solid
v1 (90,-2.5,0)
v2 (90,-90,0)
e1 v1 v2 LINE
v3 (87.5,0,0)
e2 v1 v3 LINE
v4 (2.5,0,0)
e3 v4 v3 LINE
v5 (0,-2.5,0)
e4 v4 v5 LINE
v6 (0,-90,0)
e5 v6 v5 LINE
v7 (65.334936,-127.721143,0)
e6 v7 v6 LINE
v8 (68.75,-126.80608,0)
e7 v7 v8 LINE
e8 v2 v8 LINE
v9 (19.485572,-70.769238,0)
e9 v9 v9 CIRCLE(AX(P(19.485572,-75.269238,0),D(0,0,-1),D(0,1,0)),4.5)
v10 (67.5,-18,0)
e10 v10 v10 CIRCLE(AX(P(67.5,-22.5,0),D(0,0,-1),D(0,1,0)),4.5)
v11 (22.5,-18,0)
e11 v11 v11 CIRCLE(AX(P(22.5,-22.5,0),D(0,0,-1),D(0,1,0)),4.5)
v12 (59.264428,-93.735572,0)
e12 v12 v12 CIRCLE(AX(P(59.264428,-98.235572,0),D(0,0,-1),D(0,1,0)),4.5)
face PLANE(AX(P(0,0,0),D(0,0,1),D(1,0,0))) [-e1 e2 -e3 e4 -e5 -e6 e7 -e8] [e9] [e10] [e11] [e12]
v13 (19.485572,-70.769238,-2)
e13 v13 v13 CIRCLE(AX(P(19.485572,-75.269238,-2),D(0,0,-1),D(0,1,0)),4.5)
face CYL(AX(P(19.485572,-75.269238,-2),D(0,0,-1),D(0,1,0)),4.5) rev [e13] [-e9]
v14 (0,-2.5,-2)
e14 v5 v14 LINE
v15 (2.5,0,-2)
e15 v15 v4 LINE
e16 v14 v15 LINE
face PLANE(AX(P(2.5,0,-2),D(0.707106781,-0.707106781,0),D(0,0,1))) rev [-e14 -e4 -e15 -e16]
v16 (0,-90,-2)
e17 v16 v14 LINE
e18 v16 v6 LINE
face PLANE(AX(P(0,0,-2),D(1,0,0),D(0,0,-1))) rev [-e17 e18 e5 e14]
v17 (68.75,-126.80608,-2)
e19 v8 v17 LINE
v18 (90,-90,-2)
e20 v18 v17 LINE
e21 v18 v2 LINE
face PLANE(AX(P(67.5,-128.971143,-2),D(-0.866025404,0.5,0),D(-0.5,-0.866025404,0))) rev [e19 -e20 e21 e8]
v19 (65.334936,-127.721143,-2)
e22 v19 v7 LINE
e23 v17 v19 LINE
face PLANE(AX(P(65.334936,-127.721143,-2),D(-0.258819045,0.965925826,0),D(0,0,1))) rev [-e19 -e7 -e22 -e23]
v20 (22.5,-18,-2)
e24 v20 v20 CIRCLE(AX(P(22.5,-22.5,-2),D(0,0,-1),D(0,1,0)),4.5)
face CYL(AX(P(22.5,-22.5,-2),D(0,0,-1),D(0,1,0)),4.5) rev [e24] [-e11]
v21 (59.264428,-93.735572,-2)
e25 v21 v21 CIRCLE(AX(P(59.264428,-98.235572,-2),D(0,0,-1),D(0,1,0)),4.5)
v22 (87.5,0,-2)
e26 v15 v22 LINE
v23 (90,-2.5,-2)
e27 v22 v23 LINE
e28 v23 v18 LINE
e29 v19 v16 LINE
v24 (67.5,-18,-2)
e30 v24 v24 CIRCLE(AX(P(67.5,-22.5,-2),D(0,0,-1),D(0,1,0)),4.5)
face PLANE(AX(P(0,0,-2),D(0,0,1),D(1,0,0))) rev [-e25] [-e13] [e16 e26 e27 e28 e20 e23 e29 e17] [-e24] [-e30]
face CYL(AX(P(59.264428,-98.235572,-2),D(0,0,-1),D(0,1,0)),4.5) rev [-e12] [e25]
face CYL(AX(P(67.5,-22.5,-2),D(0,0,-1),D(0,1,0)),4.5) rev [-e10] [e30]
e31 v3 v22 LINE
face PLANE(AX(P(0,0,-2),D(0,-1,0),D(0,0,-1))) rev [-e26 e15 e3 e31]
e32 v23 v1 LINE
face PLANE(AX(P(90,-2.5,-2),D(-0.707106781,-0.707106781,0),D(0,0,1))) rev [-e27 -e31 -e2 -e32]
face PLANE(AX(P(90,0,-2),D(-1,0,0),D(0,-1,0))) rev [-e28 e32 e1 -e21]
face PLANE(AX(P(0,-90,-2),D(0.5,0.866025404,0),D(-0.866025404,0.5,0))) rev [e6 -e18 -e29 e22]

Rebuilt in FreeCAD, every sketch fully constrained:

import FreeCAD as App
import Part
import Sketcher
Q = App.Units.Quantity


def edges_at(feature, points):
    """Names of the edges that pass closest to the given points."""
    edges = feature.Shape.Edges
    near = lambda p: min(range(len(edges)), key=lambda i: edges[i].distToShape(Part.Vertex(*p))[0])
    return sorted({f"Edge{near(p) + 1}" for p in points})

doc = App.newDocument("Part")
body = doc.addObject("PartDesign::Body", "Body")

# Sketch on XY plane
sketch1 = body.newObject("Sketcher::SketchObject", "Sketch")
sketch1.AttachmentSupport = (doc.getObject("XY_Plane"), [""])
sketch1.MapMode = "FlatFace"
sketch1.addGeometry(Part.LineSegment(App.Vector(0, 0, 0), App.Vector(90, 0, 0)), False)
sketch1.addGeometry(Part.LineSegment(App.Vector(90, 0, 0), App.Vector(90, -90, 0)), False)
sketch1.addGeometry(Part.LineSegment(App.Vector(90, -90, 0), App.Vector(67.5, -128.971143, 0)), False)
sketch1.addGeometry(Part.LineSegment(App.Vector(67.5, -128.971143, 0), App.Vector(0, -90, 0)), False)
sketch1.addGeometry(Part.LineSegment(App.Vector(0, -90, 0), App.Vector(0, 0, 0)), False)
sketch1.addConstraint(Sketcher.Constraint("Coincident", 0, 2, 1, 1))
sketch1.addConstraint(Sketcher.Constraint("Coincident", 1, 2, 2, 1))
sketch1.addConstraint(Sketcher.Constraint("Coincident", 2, 2, 3, 1))
sketch1.addConstraint(Sketcher.Constraint("Coincident", 3, 2, 4, 1))
sketch1.addConstraint(Sketcher.Constraint("Coincident", 4, 2, 0, 1))
sketch1.addConstraint(Sketcher.Constraint("Horizontal", 0))
sketch1.addConstraint(Sketcher.Constraint("Vertical", 1))
sketch1.addConstraint(Sketcher.Constraint("Vertical", 4))
sketch1.addConstraint(Sketcher.Constraint("Coincident", 4, 2, -1, 1))
sketch1.addConstraint(Sketcher.Constraint("Perpendicular", 2, 3))
sketch1.addConstraint(Sketcher.Constraint("Horizontal", 1, 2, 3, 2))
sketch1.addConstraint(Sketcher.Constraint("Equal", 0, 1))
sketch1.addConstraint(Sketcher.Constraint("DistanceX", 0, 1, 0, 2, Q("90 mm")))
sketch1.addConstraint(Sketcher.Constraint("Angle", 2, Q("-120 deg")))
pad1 = body.newObject("PartDesign::Pad", "Pad")
pad1.Profile = sketch1
pad1.Length = 2
pad1.Reversed = True

# Sketch on XY plane
sketch2 = body.newObject("Sketcher::SketchObject", "Sketch001")
sketch2.AttachmentSupport = (doc.getObject("XY_Plane"), [""])
sketch2.MapMode = "FlatFace"
sketch2.AttachmentOffset = App.Placement(App.Vector(0, 0, -2), App.Rotation())
sketch2.addGeometry(Part.Circle(App.Vector(22.5, -22.5, 0), App.Vector(0, 0, 1), 4.5), False)
sketch2.addGeometry(Part.Circle(App.Vector(67.5, -22.5, 0), App.Vector(0, 0, 1), 4.5), False)
sketch2.addGeometry(Part.Circle(App.Vector(19.485572, -75.269238, 0), App.Vector(0, 0, 1), 4.5), False)
sketch2.addGeometry(Part.Circle(App.Vector(59.264428, -98.235572, 0), App.Vector(0, 0, 1), 4.5), False)
sketch2.addConstraint(Sketcher.Constraint("Equal", 0, 1))
sketch2.addConstraint(Sketcher.Constraint("Equal", 1, 2))
sketch2.addConstraint(Sketcher.Constraint("Equal", 2, 3))
sketch2.addConstraint(Sketcher.Constraint("Horizontal", 0, 3, 1, 3))
sketch2.addConstraint(Sketcher.Constraint("Diameter", 0, Q("9 mm")))
sketch2.addConstraint(Sketcher.Constraint("DistanceX", 0, 3, 1, 3, Q("45 mm")))
sketch2.addConstraint(Sketcher.Constraint("DistanceX", -1, 1, 0, 3, Q("22.5 mm")))
sketch2.addConstraint(Sketcher.Constraint("DistanceY", 0, 3, -1, 1, Q("22.5 mm")))
sketch2.addConstraint(Sketcher.Constraint("DistanceX", -1, 1, 2, 3, Q("19.485572 mm")))
sketch2.addConstraint(Sketcher.Constraint("DistanceX", -1, 1, 3, 3, Q("59.264428 mm")))
sketch2.addConstraint(Sketcher.Constraint("DistanceY", 3, 3, -1, 1, Q("98.235572 mm")))
sketch2.addConstraint(Sketcher.Constraint("DistanceY", 2, 3, -1, 1, Q("75.269238 mm")))
doc.recompute()
hole = body.newObject("PartDesign::Hole", "Hole")
hole.Profile = sketch2
hole.ThreadType = "None"
hole.Diameter = 9
hole.DepthType = "ThroughAll"
hole.Reversed = True
doc.recompute()

chamfer = body.newObject("PartDesign::Chamfer", "Chamfer")
chamfer.Base = (hole, edges_at(hole, [(67.5, -128.971, -1), (90, 0, -1), (0, 0, -1)]))
chamfer.Size = 2.5

doc.recompute()
